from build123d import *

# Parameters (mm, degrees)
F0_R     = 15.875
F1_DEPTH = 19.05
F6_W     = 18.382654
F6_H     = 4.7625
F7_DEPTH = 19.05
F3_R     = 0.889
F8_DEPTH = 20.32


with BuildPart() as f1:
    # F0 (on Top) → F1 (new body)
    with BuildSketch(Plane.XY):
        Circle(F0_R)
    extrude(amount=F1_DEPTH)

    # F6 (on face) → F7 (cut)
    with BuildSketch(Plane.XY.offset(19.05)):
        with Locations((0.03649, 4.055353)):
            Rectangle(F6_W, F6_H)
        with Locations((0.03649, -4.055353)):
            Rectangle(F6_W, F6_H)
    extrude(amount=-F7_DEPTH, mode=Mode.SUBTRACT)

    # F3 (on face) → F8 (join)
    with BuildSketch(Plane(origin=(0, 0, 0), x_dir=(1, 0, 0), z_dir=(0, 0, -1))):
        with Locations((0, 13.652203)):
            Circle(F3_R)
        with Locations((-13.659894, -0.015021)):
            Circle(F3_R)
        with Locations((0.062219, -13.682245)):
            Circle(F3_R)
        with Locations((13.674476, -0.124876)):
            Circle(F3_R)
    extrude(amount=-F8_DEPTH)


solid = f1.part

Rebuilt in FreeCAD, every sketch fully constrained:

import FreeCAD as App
import Part
import Sketcher

V = App.Vector
Q = App.Units.Quantity

doc = App.newDocument("Part")
body = doc.addObject("PartDesign::Body", "Body")

# Sketch on XY plane
sketch1 = body.newObject("Sketcher::SketchObject", "Sketch")
sketch1.AttachmentSupport = (doc.getObject("XY_Plane"), [""])
sketch1.MapMode = "FlatFace"
sketch1.addGeometry(Part.Circle(V(0, 0, 0), V(0, 0, 1), 16), False)
sketch1.addConstraint([
    Sketcher.Constraint("Coincident", 0, 3, -1, 1),
    Sketcher.Constraint("Diameter", 0, Q("1.25 in")),
])
pad1 = body.newObject("PartDesign::Pad", "Pad")
pad1.Profile = sketch1
pad1.Length = Q("0.75 in")

# Sketch on XY plane
sketch2 = body.newObject("Sketcher::SketchObject", "Sketch001")
sketch2.AttachmentSupport = (doc.getObject("XY_Plane"), [""])
sketch2.MapMode = "FlatFace"
sketch2.AttachmentOffset = App.Placement(V(0, 0, 0.75 * 25.4), App.Rotation())
sketch2.addGeometry([
    Part.LineSegment(V(-9.2, 6.4, 0), V(-9.2, 1.7, 0)),  # 0
    Part.LineSegment(V(-9.2, 1.7, 0), V(9.2, 1.7, 0)),  # 1
    Part.LineSegment(V(9.2, 1.7, 0), V(9.2, 6.4, 0)),  # 2
    Part.LineSegment(V(9.2, 6.4, 0), V(-9.2, 6.4, 0)),  # 3
    Part.LineSegment(V(-9.2, -1.7, 0), V(-9.2, -6.4, 0)),  # 4
    Part.LineSegment(V(-9.2, -6.4, 0), V(9.2, -6.4, 0)),  # 5
    Part.LineSegment(V(9.2, -6.4, 0), V(9.2, -1.7, 0)),  # 6
    Part.LineSegment(V(9.2, -1.7, 0), V(-9.2, -1.7, 0)),  # 7
], False)
sketch2.addConstraint([
    Sketcher.Constraint("Coincident", 0, 2, 1, 1),
    Sketcher.Constraint("Coincident", 1, 2, 2, 1),
    Sketcher.Constraint("Coincident", 2, 2, 3, 1),
    Sketcher.Constraint("Coincident", 3, 2, 0, 1),
    Sketcher.Constraint("Coincident", 4, 2, 5, 1),
    Sketcher.Constraint("Coincident", 5, 2, 6, 1),
    Sketcher.Constraint("Coincident", 6, 2, 7, 1),
    Sketcher.Constraint("Coincident", 7, 2, 4, 1),
    Sketcher.Constraint("Vertical", 0),
    Sketcher.Constraint("Horizontal", 1),
    Sketcher.Constraint("Vertical", 2),
    Sketcher.Constraint("Horizontal", 3),
    Sketcher.Constraint("Vertical", 4),
    Sketcher.Constraint("Horizontal", 5),
    Sketcher.Constraint("Vertical", 6),
    Sketcher.Constraint("Horizontal", 7),
    Sketcher.Constraint("Symmetric", 3, 2, 4, 2, -1),
    Sketcher.Constraint("Symmetric", 1, 2, 6, 2, -1),
    Sketcher.Constraint("DistanceY", 0, 2, 0, 1, Q("0.1875 in")),
    Sketcher.Constraint("DistanceX", -1, 1, 1, 2, Q("0.3632999 in")),
    Sketcher.Constraint("DistanceX", 1, 1, 1, 2, Q("18.382654 mm")),
    Sketcher.Constraint("DistanceY", -1, 1, 0, 2, Q("1.674103 mm")),
])
pocket1 = body.newObject("PartDesign::Pocket", "Pocket")
pocket1.Profile = sketch2
pocket1.Length = Q("0.75 in")

# Sketch on XY plane
sketch3 = body.newObject("Sketcher::SketchObject", "Sketch002")
sketch3.AttachmentSupport = (doc.getObject("XY_Plane"), [""])
sketch3.MapMode = "FlatFace"
sketch3.addGeometry([
    Part.Circle(V(0, -13.7, 0), V(0, 0, 1), 0.9),
    Part.Circle(V(-13.7, 0, 0), V(0, 0, 1), 0.9),
    Part.Circle(V(0.1, 13.7, 0), V(0, 0, 1), 0.9),
    Part.Circle(V(13.7, 0.1, 0), V(0, 0, 1), 0.9),
], False)
sketch3.addConstraint([
    Sketcher.Constraint("Equal", 0, 1),
    Sketcher.Constraint("Equal", 1, 2),
    Sketcher.Constraint("Equal", 2, 3),
    Sketcher.Constraint("PointOnObject", 0, 3, -2),
    Sketcher.Constraint("Diameter", 0, Q("0.07 in")),
    Sketcher.Constraint("DistanceY", -1, 1, 1, 3, Q("0.015021 mm")),
    Sketcher.Constraint("DistanceX", -1, 1, 2, 3, Q("0.062219 mm")),
    Sketcher.Constraint("DistanceY", 0, 3, 2, 3, Q("27.334448 mm")),
    Sketcher.Constraint("DistanceY", 3, 3, 2, 3, Q("13.557369 mm")),
    Sketcher.Constraint("DistanceX", 1, 3, 3, 3, Q("27.33437 mm")),
    Sketcher.Constraint("DistanceY", 0, 3, -1, 1, Q("13.652203 mm")),
    Sketcher.Constraint("DistanceX", 1, 3, -1, 1, Q("13.659894 mm")),
])
pad2 = body.newObject("PartDesign::Pad", "Pad001")
pad2.Profile = sketch3
pad2.Length = Q("0.8 in")

doc.recompute()
